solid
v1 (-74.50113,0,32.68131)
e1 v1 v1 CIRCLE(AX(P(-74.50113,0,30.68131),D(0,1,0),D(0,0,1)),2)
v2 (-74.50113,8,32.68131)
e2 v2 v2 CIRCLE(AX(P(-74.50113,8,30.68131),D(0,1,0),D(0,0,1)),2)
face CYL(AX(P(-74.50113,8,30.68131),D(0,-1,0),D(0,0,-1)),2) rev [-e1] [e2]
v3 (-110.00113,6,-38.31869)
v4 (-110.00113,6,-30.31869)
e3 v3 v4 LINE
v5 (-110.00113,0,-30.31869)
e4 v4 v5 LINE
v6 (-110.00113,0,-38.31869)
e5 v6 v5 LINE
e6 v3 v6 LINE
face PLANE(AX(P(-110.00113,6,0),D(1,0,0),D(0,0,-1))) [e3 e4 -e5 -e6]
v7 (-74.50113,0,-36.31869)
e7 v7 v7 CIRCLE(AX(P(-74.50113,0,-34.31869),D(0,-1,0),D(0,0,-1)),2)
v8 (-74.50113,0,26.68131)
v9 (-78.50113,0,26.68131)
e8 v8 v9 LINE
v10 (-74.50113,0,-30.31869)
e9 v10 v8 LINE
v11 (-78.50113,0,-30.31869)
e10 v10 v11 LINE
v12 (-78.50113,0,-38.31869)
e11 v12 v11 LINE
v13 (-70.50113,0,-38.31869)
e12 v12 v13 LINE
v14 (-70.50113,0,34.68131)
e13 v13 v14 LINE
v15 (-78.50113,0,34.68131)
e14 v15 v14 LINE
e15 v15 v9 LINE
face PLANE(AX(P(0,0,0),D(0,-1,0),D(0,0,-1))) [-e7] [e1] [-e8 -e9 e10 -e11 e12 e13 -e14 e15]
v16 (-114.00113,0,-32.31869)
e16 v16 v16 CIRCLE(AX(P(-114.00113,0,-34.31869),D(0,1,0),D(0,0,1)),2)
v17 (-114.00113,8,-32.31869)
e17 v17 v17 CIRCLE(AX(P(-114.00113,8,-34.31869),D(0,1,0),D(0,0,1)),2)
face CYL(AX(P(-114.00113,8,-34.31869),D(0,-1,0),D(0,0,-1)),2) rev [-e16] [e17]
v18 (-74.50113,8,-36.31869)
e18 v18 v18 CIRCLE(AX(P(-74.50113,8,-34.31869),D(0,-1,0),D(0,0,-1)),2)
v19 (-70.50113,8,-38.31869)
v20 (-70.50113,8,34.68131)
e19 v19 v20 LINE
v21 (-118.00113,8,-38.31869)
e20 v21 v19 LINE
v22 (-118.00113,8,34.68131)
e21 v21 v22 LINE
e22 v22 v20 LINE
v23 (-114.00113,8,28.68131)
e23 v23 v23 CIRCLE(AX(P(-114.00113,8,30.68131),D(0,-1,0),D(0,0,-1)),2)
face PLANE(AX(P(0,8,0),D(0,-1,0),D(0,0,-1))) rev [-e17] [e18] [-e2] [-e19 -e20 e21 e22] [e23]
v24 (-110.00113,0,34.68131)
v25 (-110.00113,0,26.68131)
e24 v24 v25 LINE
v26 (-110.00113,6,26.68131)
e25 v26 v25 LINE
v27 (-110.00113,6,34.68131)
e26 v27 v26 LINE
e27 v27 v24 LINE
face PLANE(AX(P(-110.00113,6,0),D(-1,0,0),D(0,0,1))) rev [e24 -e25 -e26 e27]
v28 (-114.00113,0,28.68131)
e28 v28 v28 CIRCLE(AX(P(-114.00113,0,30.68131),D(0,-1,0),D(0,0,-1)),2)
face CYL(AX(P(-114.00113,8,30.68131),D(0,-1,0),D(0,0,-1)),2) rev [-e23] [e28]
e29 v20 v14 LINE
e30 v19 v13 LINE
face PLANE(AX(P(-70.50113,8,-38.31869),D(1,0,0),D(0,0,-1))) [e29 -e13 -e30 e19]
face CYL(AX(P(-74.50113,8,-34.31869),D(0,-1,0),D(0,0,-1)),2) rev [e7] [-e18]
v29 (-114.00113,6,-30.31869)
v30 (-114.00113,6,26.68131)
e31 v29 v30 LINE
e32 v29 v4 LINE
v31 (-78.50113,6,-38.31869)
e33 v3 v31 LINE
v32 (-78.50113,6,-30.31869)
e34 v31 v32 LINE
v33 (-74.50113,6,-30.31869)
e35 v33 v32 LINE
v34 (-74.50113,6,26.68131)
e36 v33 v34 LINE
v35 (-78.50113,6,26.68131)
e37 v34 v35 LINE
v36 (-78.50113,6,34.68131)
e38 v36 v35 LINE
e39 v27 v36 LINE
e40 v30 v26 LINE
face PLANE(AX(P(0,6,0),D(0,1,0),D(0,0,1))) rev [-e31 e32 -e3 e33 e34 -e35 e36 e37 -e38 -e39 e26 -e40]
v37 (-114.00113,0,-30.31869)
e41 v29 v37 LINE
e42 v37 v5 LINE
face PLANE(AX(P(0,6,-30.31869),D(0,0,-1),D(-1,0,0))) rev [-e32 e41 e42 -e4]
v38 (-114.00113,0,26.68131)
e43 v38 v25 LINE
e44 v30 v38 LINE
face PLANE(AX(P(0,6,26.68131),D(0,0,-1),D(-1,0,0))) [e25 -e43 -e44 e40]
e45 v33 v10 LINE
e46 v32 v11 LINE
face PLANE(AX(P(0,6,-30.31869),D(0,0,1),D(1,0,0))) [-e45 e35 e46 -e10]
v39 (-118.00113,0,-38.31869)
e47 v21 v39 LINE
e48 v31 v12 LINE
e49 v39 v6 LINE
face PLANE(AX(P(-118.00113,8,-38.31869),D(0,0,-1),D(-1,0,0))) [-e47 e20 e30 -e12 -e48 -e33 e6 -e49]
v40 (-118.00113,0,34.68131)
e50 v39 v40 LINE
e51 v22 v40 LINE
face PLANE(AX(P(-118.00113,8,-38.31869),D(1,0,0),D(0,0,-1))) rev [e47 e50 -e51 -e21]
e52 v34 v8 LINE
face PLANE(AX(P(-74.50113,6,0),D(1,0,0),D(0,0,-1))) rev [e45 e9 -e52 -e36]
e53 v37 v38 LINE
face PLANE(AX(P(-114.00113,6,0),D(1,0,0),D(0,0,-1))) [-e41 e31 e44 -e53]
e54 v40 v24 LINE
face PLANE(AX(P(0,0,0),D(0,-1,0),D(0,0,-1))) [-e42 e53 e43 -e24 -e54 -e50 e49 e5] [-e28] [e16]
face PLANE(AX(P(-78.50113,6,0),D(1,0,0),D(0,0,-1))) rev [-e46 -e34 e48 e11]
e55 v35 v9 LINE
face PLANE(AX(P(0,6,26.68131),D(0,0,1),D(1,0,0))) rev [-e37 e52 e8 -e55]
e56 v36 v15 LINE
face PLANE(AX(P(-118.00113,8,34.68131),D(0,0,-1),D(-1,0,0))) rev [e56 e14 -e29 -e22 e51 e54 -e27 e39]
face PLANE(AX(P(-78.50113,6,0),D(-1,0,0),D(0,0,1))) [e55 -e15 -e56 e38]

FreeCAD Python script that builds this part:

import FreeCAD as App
import Part
import Sketcher
Q = App.Units.Quantity


def add_polygon(sketch, points):
    """Adds a closed chain of lines whose ends are joined by coincident constraints."""
    first, n = sketch.GeometryCount, len(points)
    for a, b in zip(points, points[1:] + points[:1]):
        sketch.addGeometry(Part.LineSegment(App.Vector(*a, 0), App.Vector(*b, 0)), False)
    for i in range(n):
        sketch.addConstraint(Sketcher.Constraint("Coincident", first + i, 2, first + (i + 1) % n, 1))

doc = App.newDocument("Part")
params = doc.addObject("Spreadsheet::Sheet", "Params")
for row, (alias, value) in enumerate([
    ("sketch1_height", "73 mm"),
    ("sketch1_width", "47.5 mm"),
    ("pad1_length", "8 mm"),
    ("sketch2_width", "4 mm"),
    ("sketch2_height", "8 mm"),
    ("sketch2_height2", "57 mm"),
    ("sketch2_width2", "31.5 mm"),
    ("pocket1_length", "6 mm"),
    ("sketch3_diameter", "4 mm"),
], start=1):
    params.set(f"A{row}", alias)
    params.set(f"B{row}", "=" + value)
    params.setAlias(f"B{row}", alias)

body = doc.addObject("PartDesign::Body", "Body")

sketch1 = doc.addObject("Sketcher::SketchObject", "Sketch")
body.addObject(sketch1)
sketch1.AttachmentSupport = (doc.XZ_Plane, [""])
sketch1.MapMode = "FlatFace"
add_polygon(sketch1, [(-118, -38), (-118, 35), (-71, 35), (-71, -38)])
sketch1.addConstraint([
    Sketcher.Constraint("Vertical", 0),
    Sketcher.Constraint("Horizontal", 1),
    Sketcher.Constraint("Vertical", 2),
    Sketcher.Constraint("Horizontal", 3),
    Sketcher.Constraint("DistanceY", 0, 1, 0, 2, Q("73 mm")),
    Sketcher.Constraint("DistanceX", 1, 1, 1, 2, Q("47.5 mm")),
    Sketcher.Constraint("DistanceX", 0, 2, -1, 1, Q("118.00113 mm")),
    Sketcher.Constraint("DistanceY", -1, 1, 0, 2, Q("34.68131 mm")),
])
sketch1.setExpression("Constraints[8]", "Params.sketch1_height")
sketch1.setExpression("Constraints[9]", "Params.sketch1_width")
pad1 = doc.addObject("PartDesign::Pad", "Pad")
body.addObject(pad1)
pad1.Profile = sketch1
pad1.setExpression("Length", "Params.pad1_length")
pad1.Reversed = True

sketch2 = doc.addObject("Sketcher::SketchObject", "Sketch001")
body.addObject(sketch2)
sketch2.AttachmentSupport = (doc.XZ_Plane, [""])
sketch2.MapMode = "FlatFace"
add_polygon(sketch2, [(-74.5, -30.3), (-78.5, -30.3), (-78.5, -38.3), (-110, -38.3), (-110, -30.3), (-114, -30.3), (-114, 26.7), (-110, 26.7), (-110, 34.7), (-78.5, 34.7), (-78.5, 26.7), (-74.5, 26.7)])
sketch2.addConstraint([
    Sketcher.Constraint("Horizontal", 0),
    Sketcher.Constraint("Vertical", 1),
    Sketcher.Constraint("Horizontal", 2),
    Sketcher.Constraint("Vertical", 3),
    Sketcher.Constraint("Horizontal", 4),
    Sketcher.Constraint("Vertical", 5),
    Sketcher.Constraint("Horizontal", 6),
    Sketcher.Constraint("Vertical", 7),
    Sketcher.Constraint("Horizontal", 8),
    Sketcher.Constraint("Vertical", 9),
    Sketcher.Constraint("Horizontal", 10),
    Sketcher.Constraint("Vertical", 11),
    Sketcher.Constraint("Horizontal", 0, 2, 3, 2),
    Sketcher.Constraint("Horizontal", 6, 2, 9, 2),
    Sketcher.Constraint("Vertical", 3, 2, 6, 2),
    Sketcher.Constraint("Vertical", 1, 2, 8, 2),
    Sketcher.Constraint("Equal", 0, 4),
    Sketcher.Constraint("Equal", 3, 7),
    Sketcher.Constraint("DistanceX", 0, 2, 0, 1, Q("4 mm")),
    Sketcher.Constraint("DistanceY", 1, 2, 1, 1, Q("8 mm")),
    Sketcher.Constraint("DistanceY", 5, 1, 5, 2, Q("57 mm")),
    Sketcher.Constraint("DistanceX", 2, 2, 2, 1, Q("31.5 mm")),
    Sketcher.Constraint("DistanceX", 0, 2, -1, 1, Q("78.50113 mm")),
    Sketcher.Constraint("DistanceY", 0, 2, -1, 1, Q("30.31869 mm")),
])
sketch2.setExpression("Constraints[30]", "Params.sketch2_width")
sketch2.setExpression("Constraints[31]", "Params.sketch2_height")
sketch2.setExpression("Constraints[32]", "Params.sketch2_height2")
sketch2.setExpression("Constraints[33]", "Params.sketch2_width2")
pocket1 = doc.addObject("PartDesign::Pocket", "Pocket")
body.addObject(pocket1)
pocket1.Profile = sketch2
pocket1.setExpression("Length", "Params.pocket1_length")

sketch3 = doc.addObject("Sketcher::SketchObject", "Sketch002")
body.addObject(sketch3)
sketch3.AttachmentSupport = (doc.XZ_Plane, [""])
sketch3.MapMode = "FlatFace"
sketch3.addGeometry([
    Part.Circle(App.Vector(-114, -34.3, 0), App.Vector(0, 0, 1), 2),
    Part.Circle(App.Vector(-74.5, -34.3, 0), App.Vector(0, 0, 1), 2),
    Part.Circle(App.Vector(-114, 30.7, 0), App.Vector(0, 0, 1), 2),
    Part.Circle(App.Vector(-74.5, 30.7, 0), App.Vector(0, 0, 1), 2),
], False)
sketch3.addConstraint([
    Sketcher.Constraint("Equal", 0, 1),
    Sketcher.Constraint("Equal", 1, 2),
    Sketcher.Constraint("Equal", 2, 3),
    Sketcher.Constraint("Horizontal", 0, 3, 1, 3),
    Sketcher.Constraint("Horizontal", 2, 3, 3, 3),
    Sketcher.Constraint("Vertical", 0, 3, 2, 3),
    Sketcher.Constraint("Vertical", 1, 3, 3, 3),
    Sketcher.Constraint("Diameter", 0, Q("4 mm")),
    Sketcher.Constraint("DistanceY", 0, 3, 2, 3, Q("65 mm")),
    Sketcher.Constraint("DistanceX", 0, 3, 1, 3, Q("39.5 mm")),
    Sketcher.Constraint("DistanceX", 0, 3, -1, 1, Q("114.00113 mm")),
    Sketcher.Constraint("DistanceY", 0, 3, -1, 1, Q("34.31869 mm")),
])
sketch3.setExpression("Constraints[7]", "Params.sketch3_diameter")
pocket2 = doc.addObject("PartDesign::Pocket", "Pocket001")
body.addObject(pocket2)
pocket2.Profile = sketch3
pocket2.Type = "ThroughAll"

doc.recompute()
